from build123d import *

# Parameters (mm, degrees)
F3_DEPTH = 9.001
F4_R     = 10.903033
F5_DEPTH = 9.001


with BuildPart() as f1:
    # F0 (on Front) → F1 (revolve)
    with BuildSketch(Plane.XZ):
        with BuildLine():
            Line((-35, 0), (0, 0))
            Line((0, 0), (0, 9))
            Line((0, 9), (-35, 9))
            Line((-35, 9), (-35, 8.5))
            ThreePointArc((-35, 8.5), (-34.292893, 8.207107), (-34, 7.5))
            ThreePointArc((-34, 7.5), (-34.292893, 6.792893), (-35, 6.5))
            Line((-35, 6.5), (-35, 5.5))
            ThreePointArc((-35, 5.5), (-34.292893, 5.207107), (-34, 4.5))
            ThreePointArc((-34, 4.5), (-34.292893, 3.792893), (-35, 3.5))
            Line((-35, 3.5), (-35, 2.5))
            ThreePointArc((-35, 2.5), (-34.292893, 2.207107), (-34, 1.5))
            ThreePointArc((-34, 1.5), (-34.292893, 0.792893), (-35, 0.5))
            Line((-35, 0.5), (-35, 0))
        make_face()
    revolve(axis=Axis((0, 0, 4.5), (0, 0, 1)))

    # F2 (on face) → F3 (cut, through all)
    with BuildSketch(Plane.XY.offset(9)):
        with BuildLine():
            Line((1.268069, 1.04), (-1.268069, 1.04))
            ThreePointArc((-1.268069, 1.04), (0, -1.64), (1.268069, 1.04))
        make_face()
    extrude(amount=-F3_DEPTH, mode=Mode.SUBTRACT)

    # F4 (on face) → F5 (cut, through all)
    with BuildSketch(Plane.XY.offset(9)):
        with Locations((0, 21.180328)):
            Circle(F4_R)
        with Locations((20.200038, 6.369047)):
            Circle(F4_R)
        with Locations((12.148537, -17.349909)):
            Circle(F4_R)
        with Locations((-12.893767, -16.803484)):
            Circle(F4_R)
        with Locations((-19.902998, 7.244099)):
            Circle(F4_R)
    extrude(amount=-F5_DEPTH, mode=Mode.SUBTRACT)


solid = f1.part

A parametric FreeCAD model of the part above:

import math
import FreeCAD as App
import Part
import Sketcher

V = App.Vector

doc = App.newDocument("Part")
body = doc.addObject("PartDesign::Body", "Body")

sketch1 = body.newObject("Sketcher::SketchObject", "Sketch")
sketch1.AttachmentSupport = (doc.getObject("XZ_Plane"), [""])
sketch1.MapMode = "FlatFace"
sketch1.addGeometry(Part.LineSegment(V(-35, 0, 0), V(0, 0, 0)), False)
sketch1.addGeometry(Part.LineSegment(V(0, 0, 0), V(0, 9, 0)), False)
sketch1.addGeometry(Part.LineSegment(V(0, 9, 0), V(-35, 9, 0)), False)
sketch1.addGeometry(Part.LineSegment(V(-35, 9, 0), V(-35, 8.5, 0)), False)
sketch1.addGeometry(Part.ArcOfCircle(Part.Circle(V(-35, 7.5, 0), V(0, 0, 1), 1), math.radians(0), math.radians(90)), False)
sketch1.addGeometry(Part.ArcOfCircle(Part.Circle(V(-35, 7.5, 0), V(0, 0, 1), 1), math.radians(-90), math.radians(0)), False)
sketch1.addGeometry(Part.LineSegment(V(-35, 6.5, 0), V(-35, 5.5, 0)), False)
sketch1.addGeometry(Part.ArcOfCircle(Part.Circle(V(-35, 4.5, 0), V(0, 0, 1), 1), math.radians(0), math.radians(90)), False)
sketch1.addGeometry(Part.ArcOfCircle(Part.Circle(V(-35, 4.5, 0), V(0, 0, 1), 1), math.radians(-90), math.radians(0)), False)
sketch1.addGeometry(Part.LineSegment(V(-35, 3.5, 0), V(-35, 2.5, 0)), False)
sketch1.addGeometry(Part.ArcOfCircle(Part.Circle(V(-35, 1.5, 0), V(0, 0, 1), 1), math.radians(0), math.radians(90)), False)
sketch1.addGeometry(Part.ArcOfCircle(Part.Circle(V(-35, 1.5, 0), V(0, 0, 1), 1), math.radians(-90), math.radians(0)), False)
sketch1.addGeometry(Part.LineSegment(V(-35, 0.5, 0), V(-35, 0, 0)), False)
sketch1.addConstraint(Sketcher.Constraint("Coincident", 0, 2, 1, 1))
sketch1.addConstraint(Sketcher.Constraint("Coincident", 1, 2, 2, 1))
sketch1.addConstraint(Sketcher.Constraint("Coincident", 2, 2, 3, 1))
sketch1.addConstraint(Sketcher.Constraint("Coincident", 3, 2, 4, 2))
sketch1.addConstraint(Sketcher.Constraint("Tangent", 4, 1, 5, 2))
sketch1.addConstraint(Sketcher.Constraint("Coincident", 5, 1, 6, 1))
sketch1.addConstraint(Sketcher.Constraint("Coincident", 6, 2, 7, 2))
sketch1.addConstraint(Sketcher.Constraint("Tangent", 7, 1, 8, 2))
sketch1.addConstraint(Sketcher.Constraint("Coincident", 8, 1, 9, 1))
sketch1.addConstraint(Sketcher.Constraint("Coincident", 9, 2, 10, 2))
sketch1.addConstraint(Sketcher.Constraint("Tangent", 10, 1, 11, 2))
sketch1.addConstraint(Sketcher.Constraint("Coincident", 11, 1, 12, 1))
sketch1.addConstraint(Sketcher.Constraint("Coincident", 12, 2, 0, 1))
sketch1.addConstraint(Sketcher.Constraint("Horizontal", 0))
sketch1.addConstraint(Sketcher.Constraint("Vertical", 1))
sketch1.addConstraint(Sketcher.Constraint("Horizontal", 2))
sketch1.addConstraint(Sketcher.Constraint("Vertical", 3))
sketch1.addConstraint(Sketcher.Constraint("Vertical", 6))
sketch1.addConstraint(Sketcher.Constraint("Vertical", 9))
sketch1.addConstraint(Sketcher.Constraint("Vertical", 12))
sketch1.addConstraint(Sketcher.Constraint("Coincident", 0, 2, -1, 1))
sketch1.addConstraint(Sketcher.Constraint("Equal", 4, 5))
sketch1.addConstraint(Sketcher.Constraint("Equal", 5, 7))
sketch1.addConstraint(Sketcher.Constraint("Equal", 7, 8))
sketch1.addConstraint(Sketcher.Constraint("Equal", 8, 10))
sketch1.addConstraint(Sketcher.Constraint("Equal", 10, 11))
sketch1.addConstraint(Sketcher.Constraint("Horizontal", 5, 3, 4, 1))
sketch1.addConstraint(Sketcher.Constraint("Horizontal", 8, 3, 7, 1))
sketch1.addConstraint(Sketcher.Constraint("Horizontal", 11, 3, 10, 1))
sketch1.addConstraint(Sketcher.Constraint("Vertical", 5, 3, 7, 3))
sketch1.addConstraint(Sketcher.Constraint("Vertical", 8, 3, 10, 3))
sketch1.addConstraint(Sketcher.Constraint("Vertical", 11, 3, 2, 2))
sketch1.addConstraint(Sketcher.Constraint("Vertical", 3, 2, 5, 1))
sketch1.addConstraint(Sketcher.Constraint("Vertical", 6, 2, 8, 1))
sketch1.addConstraint(Sketcher.Constraint("Vertical", 9, 2, 11, 1))
sketch1.addConstraint(Sketcher.Constraint("Equal", 6, 9))
sketch1.addConstraint(Sketcher.Constraint("Equal", 3, 12))
sketch1.addConstraint(Sketcher.Constraint("Radius", 4, 0.999999))
sketch1.addConstraint(Sketcher.Constraint("DistanceX", 0, 1, 0, 2, 35.0))
sketch1.addConstraint(Sketcher.Constraint("DistanceY", 1, 1, 1, 2, 9.0))
sketch1.addConstraint(Sketcher.Constraint("DistanceY", 6, 2, 6, 1, 1.0))
revolution = body.newObject("PartDesign::Revolution", "Revolution")
revolution.Profile = sketch1
revolution.ReferenceAxis = (sketch1, ["V_Axis"])
revolution.Angle = 360

sketch2 = body.newObject("Sketcher::SketchObject", "Sketch001")
sketch2.AttachmentSupport = (doc.getObject("XY_Plane"), [""])
sketch2.MapMode = "FlatFace"
sketch2.AttachmentOffset = App.Placement(V(0, 0, 9), App.Rotation())
sketch2.addGeometry(Part.LineSegment(V(1.3, 1, 0), V(-1.3, 1, 0)), False)
sketch2.addGeometry(Part.ArcOfCircle(Part.Circle(V(0, 0, 0), V(0, 0, 1), 1.6), math.radians(141), math.radians(399)), False)
sketch2.addConstraint(Sketcher.Constraint("Coincident", 0, 1, 1, 2))
sketch2.addConstraint(Sketcher.Constraint("Coincident", 1, 1, 0, 2))
sketch2.addConstraint(Sketcher.Constraint("Horizontal", 0))
sketch2.addConstraint(Sketcher.Constraint("Coincident", 1, 3, -1, 1))
sketch2.addConstraint(Sketcher.Constraint("Radius", 1, 1.64))
sketch2.addConstraint(Sketcher.Constraint("DistanceY", -1, 1, 0, 1, 1.04))
pocket1 = body.newObject("PartDesign::Pocket", "Pocket")
pocket1.Profile = sketch2
pocket1.Type = "ThroughAll"

sketch3 = body.newObject("Sketcher::SketchObject", "Sketch002")
sketch3.AttachmentSupport = (doc.getObject("XY_Plane"), [""])
sketch3.MapMode = "FlatFace"
sketch3.AttachmentOffset = App.Placement(V(0, 0, 9), App.Rotation())
sketch3.addGeometry(Part.Circle(V(0, 21, 0), V(0, 0, 1), 11), False)
sketch3.addGeometry(Part.Circle(V(20, 6, 0), V(0, 0, 1), 11), False)
sketch3.addGeometry(Part.Circle(V(12, -17, 0), V(0, 0, 1), 11), False)
sketch3.addGeometry(Part.Circle(V(-13, -17, 0), V(0, 0, 1), 11), False)
sketch3.addGeometry(Part.Circle(V(-20, 7, 0), V(0, 0, 1), 11), False)
sketch3.addConstraint(Sketcher.Constraint("Equal", 0, 1))
sketch3.addConstraint(Sketcher.Constraint("Equal", 1, 2))
sketch3.addConstraint(Sketcher.Constraint("Equal", 2, 3))
sketch3.addConstraint(Sketcher.Constraint("Equal", 3, 4))
sketch3.addConstraint(Sketcher.Constraint("PointOnObject", 0, 3, -2))
sketch3.addConstraint(Sketcher.Constraint("Diameter", 0, 21.806066))
sketch3.addConstraint(Sketcher.Constraint("DistanceX", 4, 3, -1, 1, 19.902998))
sketch3.addConstraint(Sketcher.Constraint("DistanceY", -1, 1, 4, 3, 7.244099))
sketch3.addConstraint(Sketcher.Constraint("DistanceX", 2, 3, 1, 3, 8.051501))
sketch3.addConstraint(Sketcher.Constraint("DistanceY", 2, 3, -1, 1, 17.349909))
sketch3.addConstraint(Sketcher.Constraint("DistanceY", 1, 3, 0, 3, 14.811281))
sketch3.addConstraint(Sketcher.Constraint("DistanceY", 3, 3, 1, 3, 23.172531))
sketch3.addConstraint(Sketcher.Constraint("DistanceY", 4, 3, 0, 3, 13.936229))
sketch3.addConstraint(Sketcher.Constraint("DistanceX", 4, 3, 3, 3, 7.009231))
sketch3.addConstraint(Sketcher.Constraint("DistanceX", -1, 1, 1, 3, 20.200038))
pocket2 = body.newObject("PartDesign::Pocket", "Pocket001")
pocket2.Profile = sketch3
pocket2.Type = "ThroughAll"

doc.recompute()
